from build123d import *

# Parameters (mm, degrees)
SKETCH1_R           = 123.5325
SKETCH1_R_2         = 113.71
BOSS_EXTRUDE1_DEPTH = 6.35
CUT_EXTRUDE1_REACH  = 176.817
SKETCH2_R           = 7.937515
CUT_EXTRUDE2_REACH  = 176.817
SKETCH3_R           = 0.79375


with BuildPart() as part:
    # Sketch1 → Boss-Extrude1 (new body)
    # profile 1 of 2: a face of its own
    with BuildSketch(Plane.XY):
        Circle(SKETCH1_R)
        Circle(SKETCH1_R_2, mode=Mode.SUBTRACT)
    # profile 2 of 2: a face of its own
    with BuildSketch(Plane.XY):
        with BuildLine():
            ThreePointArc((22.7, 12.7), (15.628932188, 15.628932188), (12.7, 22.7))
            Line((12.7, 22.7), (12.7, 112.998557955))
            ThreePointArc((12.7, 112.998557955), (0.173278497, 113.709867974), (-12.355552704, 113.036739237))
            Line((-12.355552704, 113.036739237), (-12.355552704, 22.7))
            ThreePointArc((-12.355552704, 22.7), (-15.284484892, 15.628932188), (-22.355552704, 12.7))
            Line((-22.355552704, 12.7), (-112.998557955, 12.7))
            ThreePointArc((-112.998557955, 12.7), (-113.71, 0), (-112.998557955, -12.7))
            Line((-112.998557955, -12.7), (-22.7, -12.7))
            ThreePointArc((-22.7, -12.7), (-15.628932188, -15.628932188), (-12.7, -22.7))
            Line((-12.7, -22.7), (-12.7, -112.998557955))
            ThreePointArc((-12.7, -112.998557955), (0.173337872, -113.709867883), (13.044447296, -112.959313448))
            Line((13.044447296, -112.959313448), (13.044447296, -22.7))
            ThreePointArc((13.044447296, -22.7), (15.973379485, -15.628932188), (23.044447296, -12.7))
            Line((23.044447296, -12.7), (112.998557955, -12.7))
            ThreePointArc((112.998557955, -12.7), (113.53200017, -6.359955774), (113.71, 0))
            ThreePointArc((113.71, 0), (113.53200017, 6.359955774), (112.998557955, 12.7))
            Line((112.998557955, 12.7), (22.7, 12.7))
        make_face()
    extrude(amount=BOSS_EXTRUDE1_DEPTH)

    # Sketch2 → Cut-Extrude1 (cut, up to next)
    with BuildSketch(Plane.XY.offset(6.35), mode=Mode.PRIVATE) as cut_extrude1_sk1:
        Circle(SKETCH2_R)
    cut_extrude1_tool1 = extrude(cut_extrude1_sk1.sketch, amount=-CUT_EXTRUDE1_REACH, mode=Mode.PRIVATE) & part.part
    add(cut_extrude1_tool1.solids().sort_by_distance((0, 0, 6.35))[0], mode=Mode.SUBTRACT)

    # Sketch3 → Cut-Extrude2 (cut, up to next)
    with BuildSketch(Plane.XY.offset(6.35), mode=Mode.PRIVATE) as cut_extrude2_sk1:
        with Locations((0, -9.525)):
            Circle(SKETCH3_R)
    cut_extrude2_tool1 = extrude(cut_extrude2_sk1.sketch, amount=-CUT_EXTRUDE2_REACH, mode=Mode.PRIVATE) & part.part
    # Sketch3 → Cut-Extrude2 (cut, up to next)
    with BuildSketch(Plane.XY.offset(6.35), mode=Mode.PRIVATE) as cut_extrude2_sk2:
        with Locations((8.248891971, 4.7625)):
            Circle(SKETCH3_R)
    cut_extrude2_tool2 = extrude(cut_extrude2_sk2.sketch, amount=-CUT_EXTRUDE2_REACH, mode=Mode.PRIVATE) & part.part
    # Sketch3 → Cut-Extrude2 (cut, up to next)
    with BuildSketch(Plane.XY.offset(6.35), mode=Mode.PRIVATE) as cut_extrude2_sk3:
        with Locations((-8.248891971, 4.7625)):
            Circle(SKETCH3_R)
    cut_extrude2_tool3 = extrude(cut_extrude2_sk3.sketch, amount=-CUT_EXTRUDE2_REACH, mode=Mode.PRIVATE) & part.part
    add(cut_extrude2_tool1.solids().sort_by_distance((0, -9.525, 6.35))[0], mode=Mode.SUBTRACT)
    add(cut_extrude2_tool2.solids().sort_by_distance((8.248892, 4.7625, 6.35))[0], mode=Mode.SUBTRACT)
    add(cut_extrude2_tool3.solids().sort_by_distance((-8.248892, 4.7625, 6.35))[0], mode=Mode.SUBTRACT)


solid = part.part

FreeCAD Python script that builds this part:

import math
import FreeCAD as App
import Part
import Sketcher
from FreeCAD import Vector
Q = App.Units.Quantity

doc = App.newDocument("Part")
body = doc.addObject("PartDesign::Body", "Body")

# Sketch on XY plane
sketch1 = doc.addObject("Sketcher::SketchObject", "Sketch")
body.addObject(sketch1)
sketch1.AttachmentSupport = (doc.XY_Plane, [""])
sketch1.MapMode = "FlatFace"
sketch1.addGeometry([
    Part.Circle(Vector(0, 0, 0), Vector(0, 0, 1), 123.5325),  # 0
    Part.ArcOfCircle(Part.Circle(Vector(0, 0, 0), Vector(0, 0, 1), 113.71), math.radians(6.412609), math.radians(83.587391)),  # 1
    Part.LineSegment(Vector(112.998558, 12.7, 0), Vector(22.7, 12.7, 0)),  # 2
    Part.ArcOfCircle(Part.Circle(Vector(22.7, 22.7, 0), Vector(0, 0, 1), 10), math.radians(180), math.radians(270)),  # 3
    Part.LineSegment(Vector(12.7, 22.7, 0), Vector(12.7, 112.998558, 0)),  # 4
    Part.ArcOfCircle(Part.Circle(Vector(0, 0, 0), Vector(0, 0, 1), 113.71), math.radians(96.237987), math.radians(173.587391)),  # 5
    Part.LineSegment(Vector(-12.355553, 113.036739, 0), Vector(-12.355553, 22.7, 0)),  # 6
    Part.ArcOfCircle(Part.Circle(Vector(-22.355553, 22.7, 0), Vector(0, 0, 1), 10), math.radians(-90), math.radians(0)),  # 7
    Part.LineSegment(Vector(-22.355553, 12.7, 0), Vector(-112.998558, 12.7, 0)),  # 8
    Part.ArcOfCircle(Part.Circle(Vector(0, 0, 0), Vector(0, 0, 1), 113.71), math.radians(-173.587391), math.radians(-96.412609)),  # 9
    Part.LineSegment(Vector(-112.998558, -12.7, 0), Vector(-22.7, -12.7, 0)),  # 10
    Part.ArcOfCircle(Part.Circle(Vector(-22.7, -22.7, 0), Vector(0, 0, 1), 10), math.radians(0), math.radians(90)),  # 11
    Part.LineSegment(Vector(-12.7, -22.7, 0), Vector(-12.7, -112.998558, 0)),  # 12
    Part.ArcOfCircle(Part.Circle(Vector(0, 0, 0), Vector(0, 0, 1), 113.71), math.radians(-83.412709), math.radians(-6.412609)),  # 13
    Part.LineSegment(Vector(13.044447, -112.959313, 0), Vector(13.044447, -22.7, 0)),  # 14
    Part.ArcOfCircle(Part.Circle(Vector(23.044447, -22.7, 0), Vector(0, 0, 1), 10), math.radians(90), math.radians(180)),  # 15
    Part.LineSegment(Vector(23.044447, -12.7, 0), Vector(112.998558, -12.7, 0)),  # 16
], False)
sketch1.addConstraint([
    Sketcher.Constraint("Coincident", 1, 1, 2, 1),
    Sketcher.Constraint("Tangent", 2, 2, 3, 2),
    Sketcher.Constraint("Tangent", 3, 1, 4, 1),
    Sketcher.Constraint("Coincident", 4, 2, 1, 2),
    Sketcher.Constraint("Coincident", 5, 1, 6, 1),
    Sketcher.Constraint("Tangent", 6, 2, 7, 2),
    Sketcher.Constraint("Tangent", 7, 1, 8, 1),
    Sketcher.Constraint("Coincident", 8, 2, 5, 2),
    Sketcher.Constraint("Coincident", 9, 1, 10, 1),
    Sketcher.Constraint("Tangent", 10, 2, 11, 2),
    Sketcher.Constraint("Tangent", 11, 1, 12, 1),
    Sketcher.Constraint("Coincident", 12, 2, 9, 2),
    Sketcher.Constraint("Coincident", 13, 1, 14, 1),
    Sketcher.Constraint("Tangent", 14, 2, 15, 2),
    Sketcher.Constraint("Tangent", 15, 1, 16, 1),
    Sketcher.Constraint("Coincident", 16, 2, 13, 2),
    Sketcher.Constraint("Horizontal", 2),
    Sketcher.Constraint("Vertical", 4),
    Sketcher.Constraint("Vertical", 6),
    Sketcher.Constraint("Horizontal", 8),
    Sketcher.Constraint("Horizontal", 10),
    Sketcher.Constraint("Vertical", 12),
    Sketcher.Constraint("Vertical", 14),
    Sketcher.Constraint("Horizontal", 16),
    Sketcher.Constraint("Coincident", 0, 3, -1, 1),
    Sketcher.Constraint("Coincident", 1, 3, -1, 1),
    Sketcher.Constraint("Coincident", 5, 3, -1, 1),
    Sketcher.Constraint("Coincident", 9, 3, -1, 1),
    Sketcher.Constraint("Coincident", 13, 3, -1, 1),
    Sketcher.Constraint("Equal", 1, 5),
    Sketcher.Constraint("Equal", 3, 7),
    Sketcher.Constraint("Equal", 5, 9),
    Sketcher.Constraint("Equal", 7, 11),
    Sketcher.Constraint("Equal", 9, 13),
    Sketcher.Constraint("Equal", 11, 15),
    Sketcher.Constraint("Symmetric", 3, 3, 11, 3, -1, 1),
    Sketcher.Constraint("Horizontal", 3, 3, 7, 3),
    Sketcher.Constraint("Horizontal", 11, 3, 15, 3),
    Sketcher.Constraint("Equal", 10, 4),
    Sketcher.Constraint("DistanceY", 9, 1, 8, 2, Q("1 in")),
    Sketcher.Constraint("Diameter", 0, 247.065),
    Sketcher.Constraint("Radius", 1, 113.71),
    Sketcher.Constraint("Radius", 3, 10.0),
    Sketcher.Constraint("DistanceX", 16, 1, 16, 2, 89.954111),
    Sketcher.Constraint("DistanceY", 6, 2, 6, 1, 90.336739),
])
pad1 = doc.addObject("PartDesign::Pad", "Pad")
body.addObject(pad1)
pad1.Profile = sketch1
pad1.Length = Q("0.25 in")

# Sketch on XY plane
sketch2 = doc.addObject("Sketcher::SketchObject", "Sketch001")
body.addObject(sketch2)
sketch2.AttachmentSupport = (doc.XY_Plane, [""])
sketch2.MapMode = "FlatFace"
sketch2.AttachmentOffset = App.Placement(Vector(0, 0, 0.25 * 25.4), App.Rotation())
sketch2.addGeometry(Part.Circle(Vector(0, 0, 0), Vector(0, 0, 1), 7.937515), False)
sketch2.addConstraint([
    Sketcher.Constraint("Coincident", 0, 3, -1, 1),
    Sketcher.Constraint("Diameter", 0, 15.87503),
])
pocket1 = doc.addObject("PartDesign::Pocket", "Pocket")
body.addObject(pocket1)
pocket1.Profile = sketch2
pocket1.Type = "UpToFirst"

# Sketch on XY plane
sketch3 = doc.addObject("Sketcher::SketchObject", "Sketch002")
body.addObject(sketch3)
sketch3.AttachmentSupport = (doc.XY_Plane, [""])
sketch3.MapMode = "FlatFace"
sketch3.AttachmentOffset = App.Placement(Vector(0, 0, 0.25 * 25.4), App.Rotation())
sketch3.addGeometry(Part.Circle(Vector(0, -9.525, 0), Vector(0, 0, 1), 0.79375), False)
sketch3.addConstraint([
    Sketcher.Constraint("PointOnObject", 0, 3, -2),
    Sketcher.Constraint("Diameter", 0, Q("0.0625 in")),
    Sketcher.Constraint("DistanceY", 0, 3, -1, 1, Q("0.375 in")),
])
pocket2 = doc.addObject("PartDesign::Pocket", "Pocket001")
body.addObject(pocket2)
pocket2.Profile = sketch3
pocket2.Type = "UpToFirst"

# Sketch on XY plane
sketch4 = doc.addObject("Sketcher::SketchObject", "Sketch003")
body.addObject(sketch4)
sketch4.AttachmentSupport = (doc.XY_Plane, [""])
sketch4.MapMode = "FlatFace"
sketch4.AttachmentOffset = App.Placement(Vector(0, 0, 0.25 * 25.4), App.Rotation())
sketch4.addGeometry(Part.Circle(Vector(8.248892, 4.7625, 0), Vector(0, 0, 1), 0.79375), False)
sketch4.addConstraint([
    Sketcher.Constraint("Diameter", 0, Q("0.0625 in")),
    Sketcher.Constraint("DistanceY", -1, 1, 0, 3, Q("0.1875 in")),
    Sketcher.Constraint("DistanceX", -1, 1, 0, 3, 8.248892),
])
pocket3 = doc.addObject("PartDesign::Pocket", "Pocket002")
body.addObject(pocket3)
pocket3.Profile = sketch4
pocket3.Type = "UpToFirst"

# Sketch on XY plane
sketch5 = doc.addObject("Sketcher::SketchObject", "Sketch004")
body.addObject(sketch5)
sketch5.AttachmentSupport = (doc.XY_Plane, [""])
sketch5.MapMode = "FlatFace"
sketch5.AttachmentOffset = App.Placement(Vector(0, 0, 0.25 * 25.4), App.Rotation())
sketch5.addGeometry(Part.Circle(Vector(-8.248892, 4.7625, 0), Vector(0, 0, 1), 0.79375), False)
sketch5.addConstraint([
    Sketcher.Constraint("Diameter", 0, Q("0.0625 in")),
    Sketcher.Constraint("DistanceY", -1, 1, 0, 3, Q("0.1875 in")),
    Sketcher.Constraint("DistanceX", 0, 3, -1, 1, 8.248892),
])
pocket4 = doc.addObject("PartDesign::Pocket", "Pocket003")
body.addObject(pocket4)
pocket4.Profile = sketch5
pocket4.Type = "UpToFirst"

doc.recompute()
